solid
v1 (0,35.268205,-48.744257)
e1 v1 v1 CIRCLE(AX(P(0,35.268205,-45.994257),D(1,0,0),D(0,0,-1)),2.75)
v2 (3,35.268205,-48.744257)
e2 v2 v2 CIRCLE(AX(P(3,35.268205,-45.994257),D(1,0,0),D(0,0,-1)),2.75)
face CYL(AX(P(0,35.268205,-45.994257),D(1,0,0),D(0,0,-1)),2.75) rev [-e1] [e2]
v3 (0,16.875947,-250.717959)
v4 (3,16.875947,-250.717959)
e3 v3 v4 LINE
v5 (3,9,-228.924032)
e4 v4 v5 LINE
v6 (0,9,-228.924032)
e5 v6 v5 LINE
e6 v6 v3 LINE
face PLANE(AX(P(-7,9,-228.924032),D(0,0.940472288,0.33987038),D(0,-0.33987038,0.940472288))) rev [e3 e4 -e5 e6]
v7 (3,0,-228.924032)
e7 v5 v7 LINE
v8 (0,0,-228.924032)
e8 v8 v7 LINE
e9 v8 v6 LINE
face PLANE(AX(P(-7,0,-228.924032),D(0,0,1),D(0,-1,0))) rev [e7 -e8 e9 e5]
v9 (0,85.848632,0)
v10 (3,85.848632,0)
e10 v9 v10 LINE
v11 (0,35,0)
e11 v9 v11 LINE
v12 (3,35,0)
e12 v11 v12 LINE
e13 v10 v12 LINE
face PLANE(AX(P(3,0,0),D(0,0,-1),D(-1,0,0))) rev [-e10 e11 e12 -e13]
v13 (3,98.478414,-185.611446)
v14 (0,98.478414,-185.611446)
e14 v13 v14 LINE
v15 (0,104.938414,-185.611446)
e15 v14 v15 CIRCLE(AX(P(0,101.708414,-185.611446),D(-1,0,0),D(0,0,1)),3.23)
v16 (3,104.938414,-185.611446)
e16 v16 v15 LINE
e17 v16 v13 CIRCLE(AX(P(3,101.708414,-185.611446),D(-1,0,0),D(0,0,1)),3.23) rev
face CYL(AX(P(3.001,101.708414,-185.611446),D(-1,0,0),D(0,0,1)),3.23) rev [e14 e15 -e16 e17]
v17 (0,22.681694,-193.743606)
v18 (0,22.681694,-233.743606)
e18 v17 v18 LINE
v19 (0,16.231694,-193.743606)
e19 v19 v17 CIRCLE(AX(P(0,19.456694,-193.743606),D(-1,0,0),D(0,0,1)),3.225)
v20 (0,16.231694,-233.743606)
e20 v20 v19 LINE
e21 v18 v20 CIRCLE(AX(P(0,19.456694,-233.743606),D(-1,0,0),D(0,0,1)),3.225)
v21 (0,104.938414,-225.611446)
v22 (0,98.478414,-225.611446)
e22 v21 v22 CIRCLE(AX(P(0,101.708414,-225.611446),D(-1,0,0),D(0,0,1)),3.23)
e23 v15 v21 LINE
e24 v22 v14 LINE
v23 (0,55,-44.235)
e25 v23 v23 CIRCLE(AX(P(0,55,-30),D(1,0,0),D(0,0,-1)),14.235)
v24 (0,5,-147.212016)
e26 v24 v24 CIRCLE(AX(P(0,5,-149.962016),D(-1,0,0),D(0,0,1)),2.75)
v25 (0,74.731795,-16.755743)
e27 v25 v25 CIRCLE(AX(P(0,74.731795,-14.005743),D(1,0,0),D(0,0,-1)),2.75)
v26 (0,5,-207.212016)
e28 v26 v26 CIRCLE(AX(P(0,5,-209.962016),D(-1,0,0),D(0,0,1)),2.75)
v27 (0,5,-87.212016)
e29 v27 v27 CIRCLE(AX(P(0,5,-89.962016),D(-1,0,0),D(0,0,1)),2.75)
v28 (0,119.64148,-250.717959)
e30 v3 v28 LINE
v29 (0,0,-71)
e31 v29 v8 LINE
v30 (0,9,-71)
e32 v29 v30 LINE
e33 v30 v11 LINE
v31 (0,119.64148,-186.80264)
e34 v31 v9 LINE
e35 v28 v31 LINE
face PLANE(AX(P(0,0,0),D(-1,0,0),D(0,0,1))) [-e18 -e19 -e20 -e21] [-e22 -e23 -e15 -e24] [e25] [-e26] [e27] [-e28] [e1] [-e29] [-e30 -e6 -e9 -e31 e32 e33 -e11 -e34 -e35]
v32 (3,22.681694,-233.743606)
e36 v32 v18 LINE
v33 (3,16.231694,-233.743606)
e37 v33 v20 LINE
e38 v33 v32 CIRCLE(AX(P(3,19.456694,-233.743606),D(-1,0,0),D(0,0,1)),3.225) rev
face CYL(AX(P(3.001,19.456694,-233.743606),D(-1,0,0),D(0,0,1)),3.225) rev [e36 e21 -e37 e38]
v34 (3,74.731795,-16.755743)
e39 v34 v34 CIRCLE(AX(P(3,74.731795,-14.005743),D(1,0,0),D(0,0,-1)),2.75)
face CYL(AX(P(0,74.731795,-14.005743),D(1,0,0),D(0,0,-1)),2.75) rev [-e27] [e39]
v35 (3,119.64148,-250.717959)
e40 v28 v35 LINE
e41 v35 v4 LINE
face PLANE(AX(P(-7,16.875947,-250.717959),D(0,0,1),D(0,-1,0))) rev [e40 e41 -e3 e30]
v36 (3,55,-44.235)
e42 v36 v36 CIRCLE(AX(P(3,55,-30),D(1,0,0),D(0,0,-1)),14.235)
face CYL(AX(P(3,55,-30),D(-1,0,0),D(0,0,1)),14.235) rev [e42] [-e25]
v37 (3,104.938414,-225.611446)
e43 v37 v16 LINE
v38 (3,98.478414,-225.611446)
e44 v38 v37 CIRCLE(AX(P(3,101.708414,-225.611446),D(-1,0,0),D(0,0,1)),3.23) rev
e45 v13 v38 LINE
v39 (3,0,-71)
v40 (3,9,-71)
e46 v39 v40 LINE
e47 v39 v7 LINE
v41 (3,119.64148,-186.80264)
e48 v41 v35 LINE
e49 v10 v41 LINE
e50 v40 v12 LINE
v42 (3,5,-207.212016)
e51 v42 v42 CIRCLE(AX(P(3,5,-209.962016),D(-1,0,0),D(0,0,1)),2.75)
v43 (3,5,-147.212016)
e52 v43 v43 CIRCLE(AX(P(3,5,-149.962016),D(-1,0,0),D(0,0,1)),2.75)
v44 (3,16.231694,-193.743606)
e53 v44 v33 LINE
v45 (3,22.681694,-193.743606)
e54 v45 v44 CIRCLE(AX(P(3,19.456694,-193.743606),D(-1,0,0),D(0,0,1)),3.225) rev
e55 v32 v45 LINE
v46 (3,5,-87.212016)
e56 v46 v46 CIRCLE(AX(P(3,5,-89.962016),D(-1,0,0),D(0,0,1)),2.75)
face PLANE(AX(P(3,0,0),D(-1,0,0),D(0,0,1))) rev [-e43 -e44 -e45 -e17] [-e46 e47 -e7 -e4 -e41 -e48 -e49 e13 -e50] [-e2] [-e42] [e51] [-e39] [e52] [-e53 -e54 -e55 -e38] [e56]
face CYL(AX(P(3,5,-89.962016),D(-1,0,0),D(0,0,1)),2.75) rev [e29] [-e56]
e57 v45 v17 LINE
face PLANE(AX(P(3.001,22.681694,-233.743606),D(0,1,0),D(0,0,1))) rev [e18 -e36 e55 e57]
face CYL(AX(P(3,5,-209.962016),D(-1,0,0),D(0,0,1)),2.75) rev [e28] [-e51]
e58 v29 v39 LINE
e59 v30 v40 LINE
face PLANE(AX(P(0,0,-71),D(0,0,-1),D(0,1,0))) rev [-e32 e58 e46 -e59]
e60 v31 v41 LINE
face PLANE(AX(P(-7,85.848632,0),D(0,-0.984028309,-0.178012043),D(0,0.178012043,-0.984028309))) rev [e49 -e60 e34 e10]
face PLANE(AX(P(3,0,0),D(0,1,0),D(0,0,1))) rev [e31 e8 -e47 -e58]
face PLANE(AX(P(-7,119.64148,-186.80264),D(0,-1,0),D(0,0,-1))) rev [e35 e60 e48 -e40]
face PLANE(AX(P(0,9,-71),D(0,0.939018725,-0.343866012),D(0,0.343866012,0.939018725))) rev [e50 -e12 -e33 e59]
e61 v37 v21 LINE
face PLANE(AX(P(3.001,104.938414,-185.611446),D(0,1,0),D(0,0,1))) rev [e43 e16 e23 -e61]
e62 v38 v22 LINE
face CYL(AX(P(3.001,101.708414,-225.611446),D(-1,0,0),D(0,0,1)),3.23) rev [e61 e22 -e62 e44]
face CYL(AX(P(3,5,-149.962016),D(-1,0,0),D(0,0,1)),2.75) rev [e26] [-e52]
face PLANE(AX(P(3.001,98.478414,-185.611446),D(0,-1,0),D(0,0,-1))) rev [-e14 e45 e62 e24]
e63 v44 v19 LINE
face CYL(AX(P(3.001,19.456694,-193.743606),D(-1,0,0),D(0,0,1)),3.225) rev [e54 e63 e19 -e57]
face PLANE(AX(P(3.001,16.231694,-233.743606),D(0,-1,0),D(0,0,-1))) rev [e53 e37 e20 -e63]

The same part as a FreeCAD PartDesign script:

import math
import FreeCAD as App
import Part
import Sketcher
from FreeCAD import Vector

doc = App.newDocument("Part")
body = doc.addObject("PartDesign::Body", "Body")

# Sketch on YZ plane
sketch1 = body.newObject("Sketcher::SketchObject", "Sketch")
sketch1.AttachmentSupport = (doc.getObject("YZ_Plane"), [""])
sketch1.MapMode = "FlatFace"
sketch1.addGeometry(Part.LineSegment(Vector(150, 0, 0), Vector(0, 0, 0)), False)
sketch1.addGeometry(Part.LineSegment(Vector(0, 0, 0), Vector(0, -300, 0)), False)
sketch1.addGeometry(Part.LineSegment(Vector(0, -300, 0), Vector(150, -300, 0)), False)
sketch1.addGeometry(Part.LineSegment(Vector(150, -300, 0), Vector(150, 0, 0)), False)
sketch1.addGeometry(Part.Circle(Vector(55, -30, 0), Vector(0, 0, 1), 14), False)
sketch1.addConstraint(Sketcher.Constraint("Coincident", 0, 2, 1, 1))
sketch1.addConstraint(Sketcher.Constraint("Coincident", 1, 2, 2, 1))
sketch1.addConstraint(Sketcher.Constraint("Coincident", 2, 2, 3, 1))
sketch1.addConstraint(Sketcher.Constraint("Coincident", 3, 2, 0, 1))
sketch1.addConstraint(Sketcher.Constraint("Horizontal", 0))
sketch1.addConstraint(Sketcher.Constraint("Vertical", 1))
sketch1.addConstraint(Sketcher.Constraint("Horizontal", 2))
sketch1.addConstraint(Sketcher.Constraint("Vertical", 3))
sketch1.addConstraint(Sketcher.Constraint("Coincident", 0, 2, -1, 1))
sketch1.addConstraint(Sketcher.Constraint("Diameter", 4, 28.47))
sketch1.addConstraint(Sketcher.Constraint("DistanceX", 0, 2, 0, 1, 150.0))
sketch1.addConstraint(Sketcher.Constraint("DistanceY", 1, 2, 1, 1, 300.0))
sketch1.addConstraint(Sketcher.Constraint("DistanceX", -1, 1, 4, 3, 55.0))
sketch1.addConstraint(Sketcher.Constraint("DistanceY", 4, 3, -1, 1, 30.0))
pad1 = body.newObject("PartDesign::Pad", "Pad")
pad1.Profile = sketch1
pad1.Length = 3

# Sketch on YZ plane
sketch2 = body.newObject("Sketcher::SketchObject", "Sketch001")
sketch2.AttachmentSupport = (doc.getObject("YZ_Plane"), [""])
sketch2.MapMode = "FlatFace"
sketch2.addGeometry(Part.Circle(Vector(140, -290, 0), Vector(0, 0, 1), 3.2), False)
sketch2.addConstraint(Sketcher.Constraint("Diameter", 0, 6.45))
sketch2.addConstraint(Sketcher.Constraint("DistanceX", -1, 1, 0, 3, 140.0))
sketch2.addConstraint(Sketcher.Constraint("DistanceY", 0, 3, -1, 1, 290.0))
pocket1 = body.newObject("PartDesign::Pocket", "Pocket")
pocket1.Profile = sketch2
pocket1.Type = "UpToFirst"
pocket1.Reversed = True

# Sketch on YZ plane
sketch3 = body.newObject("Sketcher::SketchObject", "Sketch002")
sketch3.AttachmentSupport = (doc.getObject("YZ_Plane"), [""])
sketch3.MapMode = "FlatFace"
sketch3.addGeometry(Part.Circle(Vector(110, -10, 0), Vector(0, 0, 1), 3.2), False)
sketch3.addConstraint(Sketcher.Constraint("Diameter", 0, 6.45))
sketch3.addConstraint(Sketcher.Constraint("DistanceX", -1, 1, 0, 3, 110.0))
sketch3.addConstraint(Sketcher.Constraint("DistanceY", 0, 3, -1, 1, 10.0))
pocket2 = body.newObject("PartDesign::Pocket", "Pocket001")
pocket2.Profile = sketch3
pocket2.Type = "UpToFirst"
pocket2.Reversed = True

# Sketch on YZ plane
sketch4 = body.newObject("Sketcher::SketchObject", "Sketch003")
sketch4.AttachmentSupport = (doc.getObject("YZ_Plane"), [""])
sketch4.MapMode = "FlatFace"
sketch4.addGeometry(Part.Circle(Vector(30, -290, 0), Vector(0, 0, 1), 3.2), False)
sketch4.addConstraint(Sketcher.Constraint("Diameter", 0, 6.45))
sketch4.addConstraint(Sketcher.Constraint("DistanceX", -1, 1, 0, 3, 30.0))
sketch4.addConstraint(Sketcher.Constraint("DistanceY", 0, 3, -1, 1, 290.0))
pocket3 = body.newObject("PartDesign::Pocket", "Pocket002")
pocket3.Profile = sketch4
pocket3.Type = "UpToFirst"
pocket3.Reversed = True

# Sketch on YZ plane
sketch5 = body.newObject("Sketcher::SketchObject", "Sketch004")
sketch5.AttachmentSupport = (doc.getObject("YZ_Plane"), [""])
sketch5.MapMode = "FlatFace"
sketch5.addGeometry(Part.LineSegment(Vector(98.5, -225.6, 0), Vector(98.5, -185.6, 0)), False)
sketch5.addGeometry(Part.ArcOfCircle(Part.Circle(Vector(101.7, -185.6, 0), Vector(0, 0, 1), 3.2), math.radians(0), math.radians(180)), False)
sketch5.addGeometry(Part.LineSegment(Vector(104.9, -185.6, 0), Vector(104.9, -225.6, 0)), False)
sketch5.addGeometry(Part.ArcOfCircle(Part.Circle(Vector(101.7, -225.6, 0), Vector(0, 0, 1), 3.2), math.radians(180), math.radians(360)), False)
sketch5.addConstraint(Sketcher.Constraint("Tangent", 0, 2, 1, 2))
sketch5.addConstraint(Sketcher.Constraint("Tangent", 1, 1, 2, 1))
sketch5.addConstraint(Sketcher.Constraint("Tangent", 2, 2, 3, 2))
sketch5.addConstraint(Sketcher.Constraint("Tangent", 3, 1, 0, 1))
sketch5.addConstraint(Sketcher.Constraint("Vertical", 0))
sketch5.addConstraint(Sketcher.Constraint("Vertical", 2))
sketch5.addConstraint(Sketcher.Constraint("DistanceY", 0, 1, 0, 2, 40.0))
sketch5.addConstraint(Sketcher.Constraint("Radius", 1, 3.23))
sketch5.addConstraint(Sketcher.Constraint("DistanceX", -1, 1, 1, 3, 101.708414))
sketch5.addConstraint(Sketcher.Constraint("DistanceY", 1, 3, -1, 1, 185.611446))
pocket4 = body.newObject("PartDesign::Pocket", "Pocket003")
pocket4.Profile = sketch5
pocket4.Type = "UpToFirst"
pocket4.Reversed = True

# Sketch on YZ plane
sketch6 = body.newObject("Sketcher::SketchObject", "Sketch005")
sketch6.AttachmentSupport = (doc.getObject("YZ_Plane"), [""])
sketch6.MapMode = "FlatFace"
sketch6.addGeometry(Part.LineSegment(Vector(22.7, -193.7, 0), Vector(22.7, -233.7, 0)), False)
sketch6.addGeometry(Part.ArcOfCircle(Part.Circle(Vector(19.5, -233.7, 0), Vector(0, 0, 1), 3.2), math.radians(180), math.radians(360)), False)
sketch6.addGeometry(Part.LineSegment(Vector(16.2, -233.7, 0), Vector(16.2, -193.7, 0)), False)
sketch6.addGeometry(Part.ArcOfCircle(Part.Circle(Vector(19.5, -193.7, 0), Vector(0, 0, 1), 3.2), math.radians(0), math.radians(180)), False)
sketch6.addConstraint(Sketcher.Constraint("Tangent", 0, 2, 1, 2))
sketch6.addConstraint(Sketcher.Constraint("Tangent", 1, 1, 2, 1))
sketch6.addConstraint(Sketcher.Constraint("Tangent", 2, 2, 3, 2))
sketch6.addConstraint(Sketcher.Constraint("Tangent", 3, 1, 0, 1))
sketch6.addConstraint(Sketcher.Constraint("Vertical", 0))
sketch6.addConstraint(Sketcher.Constraint("Vertical", 2))
sketch6.addConstraint(Sketcher.Constraint("DistanceY", 0, 2, 0, 1, 40.0))
sketch6.addConstraint(Sketcher.Constraint("Radius", 1, 3.225))
sketch6.addConstraint(Sketcher.Constraint("DistanceX", -1, 1, 1, 3, 19.456694))
sketch6.addConstraint(Sketcher.Constraint("DistanceY", 1, 3, -1, 1, 233.743606))
pocket5 = body.newObject("PartDesign::Pocket", "Pocket004")
pocket5.Profile = sketch6
pocket5.Type = "UpToFirst"
pocket5.Reversed = True

# Sketch on YZ plane
sketch7 = body.newObject("Sketcher::SketchObject", "Sketch006")
sketch7.AttachmentSupport = (doc.getObject("YZ_Plane"), [""])
sketch7.MapMode = "FlatFace"
sketch7.AttachmentOffset = App.Placement(Vector(0, 0, 3), App.Rotation())
sketch7.addGeometry(Part.Circle(Vector(74.7, -14, 0), Vector(0, 0, 1), 2.8), False)
sketch7.addGeometry(Part.Circle(Vector(35.3, -46, 0), Vector(0, 0, 1), 2.8), False)
sketch7.addConstraint(Sketcher.Constraint("Equal", 0, 1))
sketch7.addConstraint(Sketcher.Constraint("Diameter", 0, 5.5))
sketch7.addConstraint(Sketcher.Constraint("DistanceX", 1, 3, 0, 3, 39.463591))
sketch7.addConstraint(Sketcher.Constraint("DistanceX", -1, 1, 0, 3, 74.731795))
sketch7.addConstraint(Sketcher.Constraint("DistanceY", 0, 3, -1, 1, 14.005743))
sketch7.addConstraint(Sketcher.Constraint("DistanceY", 1, 3, -1, 1, 45.994257))
pocket6 = body.newObject("PartDesign::Pocket", "Pocket005")
pocket6.Profile = sketch7
pocket6.Type = "ThroughAll"

# Sketch on YZ plane
sketch8 = body.newObject("Sketcher::SketchObject", "Sketch007")
sketch8.AttachmentSupport = (doc.getObject("YZ_Plane"), [""])
sketch8.MapMode = "FlatFace"
sketch8.AttachmentOffset = App.Placement(Vector(0, 0, 3), App.Rotation())
sketch8.addGeometry(Part.LineSegment(Vector(9, -71, 0), Vector(35, 0, 0)), False)
sketch8.addGeometry(Part.LineSegment(Vector(35, 0, 0), Vector(0, 0, 0)), False)
sketch8.addGeometry(Part.LineSegment(Vector(0, 0, 0), Vector(0, -71, 0)), False)
sketch8.addGeometry(Part.LineSegment(Vector(0, -71, 0), Vector(9, -71, 0)), False)
sketch8.addConstraint(Sketcher.Constraint("Coincident", 0, 2, 1, 1))
sketch8.addConstraint(Sketcher.Constraint("Coincident", 1, 2, 2, 1))
sketch8.addConstraint(Sketcher.Constraint("Coincident", 2, 2, 3, 1))
sketch8.addConstraint(Sketcher.Constraint("Coincident", 3, 2, 0, 1))
sketch8.addConstraint(Sketcher.Constraint("Horizontal", 1))
sketch8.addConstraint(Sketcher.Constraint("Vertical", 2))
sketch8.addConstraint(Sketcher.Constraint("Horizontal", 3))
sketch8.addConstraint(Sketcher.Constraint("Coincident", 1, 2, -1, 1))
sketch8.addConstraint(Sketcher.Constraint("DistanceX", 1, 2, 1, 1, 35.0))
sketch8.addConstraint(Sketcher.Constraint("DistanceX", 3, 1, 3, 2, 9.0))
sketch8.addConstraint(Sketcher.Constraint("DistanceY", 2, 2, 2, 1, 71.0))
pocket7 = body.newObject("PartDesign::Pocket", "Pocket006")
pocket7.Profile = sketch8
pocket7.Type = "ThroughAll"

# Sketch on YZ plane
sketch9 = body.newObject("Sketcher::SketchObject", "Sketch008")
sketch9.AttachmentSupport = (doc.getObject("YZ_Plane"), [""])
sketch9.MapMode = "FlatFace"
sketch9.AttachmentOffset = App.Placement(Vector(0, 0, 3), App.Rotation())
sketch9.addGeometry(Part.LineSegment(Vector(17, -251, 0), Vector(9, -229, 0)), False)
sketch9.addGeometry(Part.LineSegment(Vector(9, -229, 0), Vector(0, -229, 0)), False)
sketch9.addGeometry(Part.LineSegment(Vector(0, -229, 0), Vector(-3, -313, 0)), False)
sketch9.addGeometry(Part.LineSegment(Vector(-3, -313, 0), Vector(150, -313, 0)), False)
sketch9.addGeometry(Part.LineSegment(Vector(150, -313, 0), Vector(150, -251, 0)), False)
sketch9.addGeometry(Part.LineSegment(Vector(150, -251, 0), Vector(17, -251, 0)), False)
sketch9.addConstraint(Sketcher.Constraint("Coincident", 0, 2, 1, 1))
sketch9.addConstraint(Sketcher.Constraint("Coincident", 1, 2, 2, 1))
sketch9.addConstraint(Sketcher.Constraint("Coincident", 2, 2, 3, 1))
sketch9.addConstraint(Sketcher.Constraint("Coincident", 3, 2, 4, 1))
sketch9.addConstraint(Sketcher.Constraint("Coincident", 4, 2, 5, 1))
sketch9.addConstraint(Sketcher.Constraint("Coincident", 5, 2, 0, 1))
sketch9.addConstraint(Sketcher.Constraint("Horizontal", 1))
sketch9.addConstraint(Sketcher.Constraint("Horizontal", 3))
sketch9.addConstraint(Sketcher.Constraint("Vertical", 4))
sketch9.addConstraint(Sketcher.Constraint("Horizontal", 5))
sketch9.addConstraint(Sketcher.Constraint("PointOnObject", 1, 2, -2))
sketch9.addConstraint(Sketcher.Constraint("DistanceX", 1, 2, 1, 1, 9.0))
sketch9.addConstraint(Sketcher.Constraint("DistanceX", -1, 1, 3, 2, 150.0))
sketch9.addConstraint(Sketcher.Constraint("DistanceX", 3, 1, 3, 2, 152.829604))
sketch9.addConstraint(Sketcher.Constraint("DistanceX", 5, 2, 5, 1, 133.124053))
sketch9.addConstraint(Sketcher.Constraint("DistanceY", 4, 1, 4, 2, 61.942462))
sketch9.addConstraint(Sketcher.Constraint("DistanceY", 2, 2, -1, 1, 312.660421))
sketch9.addConstraint(Sketcher.Constraint("DistanceY", 2, 2, 1, 2, 83.736389))
pocket8 = body.newObject("PartDesign::Pocket", "Pocket007")
pocket8.Profile = sketch9
pocket8.Length = 10

# Sketch on YZ plane
sketch10 = body.newObject("Sketcher::SketchObject", "Sketch009")
sketch10.AttachmentSupport = (doc.getObject("YZ_Plane"), [""])
sketch10.MapMode = "FlatFace"
sketch10.AttachmentOffset = App.Placement(Vector(0, 0, 3), App.Rotation())
sketch10.addGeometry(Part.LineSegment(Vector(86, 0, 0), Vector(120, -187, 0)), False)
sketch10.addGeometry(Part.LineSegment(Vector(120, -187, 0), Vector(120, -251, 0)), False)
sketch10.addGeometry(Part.LineSegment(Vector(120, -251, 0), Vector(150, -251, 0)), False)
sketch10.addGeometry(Part.LineSegment(Vector(150, -251, 0), Vector(150, 0, 0)), False)
sketch10.addGeometry(Part.LineSegment(Vector(150, 0, 0), Vector(86, 0, 0)), False)
sketch10.addConstraint(Sketcher.Constraint("Coincident", 0, 2, 1, 1))
sketch10.addConstraint(Sketcher.Constraint("Coincident", 1, 2, 2, 1))
sketch10.addConstraint(Sketcher.Constraint("Coincident", 2, 2, 3, 1))
sketch10.addConstraint(Sketcher.Constraint("Coincident", 3, 2, 4, 1))
sketch10.addConstraint(Sketcher.Constraint("Coincident", 4, 2, 0, 1))
sketch10.addConstraint(Sketcher.Constraint("Vertical", 1))
sketch10.addConstraint(Sketcher.Constraint("Horizontal", 2))
sketch10.addConstraint(Sketcher.Constraint("Vertical", 3))
sketch10.addConstraint(Sketcher.Constraint("Horizontal", 4))
sketch10.addConstraint(Sketcher.Constraint("PointOnObject", 3, 2, -1))
sketch10.addConstraint(Sketcher.Constraint("DistanceX", -1, 1, 2, 2, 150.0))
sketch10.addConstraint(Sketcher.Constraint("DistanceX", 2, 1, 2, 2, 30.35852))
sketch10.addConstraint(Sketcher.Constraint("DistanceX", 4, 2, 4, 1, 64.151368))
sketch10.addConstraint(Sketcher.Constraint("DistanceY", 1, 2, 1, 1, 63.915318))
sketch10.addConstraint(Sketcher.Constraint("DistanceY", 3, 1, 3, 2, 250.717959))
pocket9 = body.newObject("PartDesign::Pocket", "Pocket008")
pocket9.Profile = sketch10
pocket9.Length = 10

# Sketch on YZ plane
sketch11 = body.newObject("Sketcher::SketchObject", "Sketch010")
sketch11.AttachmentSupport = (doc.getObject("YZ_Plane"), [""])
sketch11.MapMode = "FlatFace"
sketch11.addGeometry(Part.Circle(Vector(5, -210, 0), Vector(0, 0, 1), 2.8), False)
sketch11.addGeometry(Part.Circle(Vector(5, -150, 0), Vector(0, 0, 1), 2.8), False)
sketch11.addGeometry(Part.Circle(Vector(5, -90, 0), Vector(0, 0, 1), 2.8), False)
sketch11.addConstraint(Sketcher.Constraint("Equal", 0, 1))
sketch11.addConstraint(Sketcher.Constraint("Equal", 1, 2))
sketch11.addConstraint(Sketcher.Constraint("Vertical", 0, 3, 1, 3))
sketch11.addConstraint(Sketcher.Constraint("Vertical", 1, 3, 2, 3))
sketch11.addConstraint(Sketcher.Constraint("Diameter", 0, 5.5))
sketch11.addConstraint(Sketcher.Constraint("DistanceX", -1, 1, 0, 3, 5.0))
sketch11.addConstraint(Sketcher.Constraint("DistanceY", 0, 3, 1, 3, 60.0))
sketch11.addConstraint(Sketcher.Constraint("DistanceY", 1, 3, 2, 3, 60.0))
sketch11.addConstraint(Sketcher.Constraint("DistanceY", 0, 3, -1, 1, 209.962016))
pocket10 = body.newObject("PartDesign::Pocket", "Pocket009")
pocket10.Profile = sketch11
pocket10.Type = "ThroughAll"
pocket10.Reversed = True

doc.recompute()
